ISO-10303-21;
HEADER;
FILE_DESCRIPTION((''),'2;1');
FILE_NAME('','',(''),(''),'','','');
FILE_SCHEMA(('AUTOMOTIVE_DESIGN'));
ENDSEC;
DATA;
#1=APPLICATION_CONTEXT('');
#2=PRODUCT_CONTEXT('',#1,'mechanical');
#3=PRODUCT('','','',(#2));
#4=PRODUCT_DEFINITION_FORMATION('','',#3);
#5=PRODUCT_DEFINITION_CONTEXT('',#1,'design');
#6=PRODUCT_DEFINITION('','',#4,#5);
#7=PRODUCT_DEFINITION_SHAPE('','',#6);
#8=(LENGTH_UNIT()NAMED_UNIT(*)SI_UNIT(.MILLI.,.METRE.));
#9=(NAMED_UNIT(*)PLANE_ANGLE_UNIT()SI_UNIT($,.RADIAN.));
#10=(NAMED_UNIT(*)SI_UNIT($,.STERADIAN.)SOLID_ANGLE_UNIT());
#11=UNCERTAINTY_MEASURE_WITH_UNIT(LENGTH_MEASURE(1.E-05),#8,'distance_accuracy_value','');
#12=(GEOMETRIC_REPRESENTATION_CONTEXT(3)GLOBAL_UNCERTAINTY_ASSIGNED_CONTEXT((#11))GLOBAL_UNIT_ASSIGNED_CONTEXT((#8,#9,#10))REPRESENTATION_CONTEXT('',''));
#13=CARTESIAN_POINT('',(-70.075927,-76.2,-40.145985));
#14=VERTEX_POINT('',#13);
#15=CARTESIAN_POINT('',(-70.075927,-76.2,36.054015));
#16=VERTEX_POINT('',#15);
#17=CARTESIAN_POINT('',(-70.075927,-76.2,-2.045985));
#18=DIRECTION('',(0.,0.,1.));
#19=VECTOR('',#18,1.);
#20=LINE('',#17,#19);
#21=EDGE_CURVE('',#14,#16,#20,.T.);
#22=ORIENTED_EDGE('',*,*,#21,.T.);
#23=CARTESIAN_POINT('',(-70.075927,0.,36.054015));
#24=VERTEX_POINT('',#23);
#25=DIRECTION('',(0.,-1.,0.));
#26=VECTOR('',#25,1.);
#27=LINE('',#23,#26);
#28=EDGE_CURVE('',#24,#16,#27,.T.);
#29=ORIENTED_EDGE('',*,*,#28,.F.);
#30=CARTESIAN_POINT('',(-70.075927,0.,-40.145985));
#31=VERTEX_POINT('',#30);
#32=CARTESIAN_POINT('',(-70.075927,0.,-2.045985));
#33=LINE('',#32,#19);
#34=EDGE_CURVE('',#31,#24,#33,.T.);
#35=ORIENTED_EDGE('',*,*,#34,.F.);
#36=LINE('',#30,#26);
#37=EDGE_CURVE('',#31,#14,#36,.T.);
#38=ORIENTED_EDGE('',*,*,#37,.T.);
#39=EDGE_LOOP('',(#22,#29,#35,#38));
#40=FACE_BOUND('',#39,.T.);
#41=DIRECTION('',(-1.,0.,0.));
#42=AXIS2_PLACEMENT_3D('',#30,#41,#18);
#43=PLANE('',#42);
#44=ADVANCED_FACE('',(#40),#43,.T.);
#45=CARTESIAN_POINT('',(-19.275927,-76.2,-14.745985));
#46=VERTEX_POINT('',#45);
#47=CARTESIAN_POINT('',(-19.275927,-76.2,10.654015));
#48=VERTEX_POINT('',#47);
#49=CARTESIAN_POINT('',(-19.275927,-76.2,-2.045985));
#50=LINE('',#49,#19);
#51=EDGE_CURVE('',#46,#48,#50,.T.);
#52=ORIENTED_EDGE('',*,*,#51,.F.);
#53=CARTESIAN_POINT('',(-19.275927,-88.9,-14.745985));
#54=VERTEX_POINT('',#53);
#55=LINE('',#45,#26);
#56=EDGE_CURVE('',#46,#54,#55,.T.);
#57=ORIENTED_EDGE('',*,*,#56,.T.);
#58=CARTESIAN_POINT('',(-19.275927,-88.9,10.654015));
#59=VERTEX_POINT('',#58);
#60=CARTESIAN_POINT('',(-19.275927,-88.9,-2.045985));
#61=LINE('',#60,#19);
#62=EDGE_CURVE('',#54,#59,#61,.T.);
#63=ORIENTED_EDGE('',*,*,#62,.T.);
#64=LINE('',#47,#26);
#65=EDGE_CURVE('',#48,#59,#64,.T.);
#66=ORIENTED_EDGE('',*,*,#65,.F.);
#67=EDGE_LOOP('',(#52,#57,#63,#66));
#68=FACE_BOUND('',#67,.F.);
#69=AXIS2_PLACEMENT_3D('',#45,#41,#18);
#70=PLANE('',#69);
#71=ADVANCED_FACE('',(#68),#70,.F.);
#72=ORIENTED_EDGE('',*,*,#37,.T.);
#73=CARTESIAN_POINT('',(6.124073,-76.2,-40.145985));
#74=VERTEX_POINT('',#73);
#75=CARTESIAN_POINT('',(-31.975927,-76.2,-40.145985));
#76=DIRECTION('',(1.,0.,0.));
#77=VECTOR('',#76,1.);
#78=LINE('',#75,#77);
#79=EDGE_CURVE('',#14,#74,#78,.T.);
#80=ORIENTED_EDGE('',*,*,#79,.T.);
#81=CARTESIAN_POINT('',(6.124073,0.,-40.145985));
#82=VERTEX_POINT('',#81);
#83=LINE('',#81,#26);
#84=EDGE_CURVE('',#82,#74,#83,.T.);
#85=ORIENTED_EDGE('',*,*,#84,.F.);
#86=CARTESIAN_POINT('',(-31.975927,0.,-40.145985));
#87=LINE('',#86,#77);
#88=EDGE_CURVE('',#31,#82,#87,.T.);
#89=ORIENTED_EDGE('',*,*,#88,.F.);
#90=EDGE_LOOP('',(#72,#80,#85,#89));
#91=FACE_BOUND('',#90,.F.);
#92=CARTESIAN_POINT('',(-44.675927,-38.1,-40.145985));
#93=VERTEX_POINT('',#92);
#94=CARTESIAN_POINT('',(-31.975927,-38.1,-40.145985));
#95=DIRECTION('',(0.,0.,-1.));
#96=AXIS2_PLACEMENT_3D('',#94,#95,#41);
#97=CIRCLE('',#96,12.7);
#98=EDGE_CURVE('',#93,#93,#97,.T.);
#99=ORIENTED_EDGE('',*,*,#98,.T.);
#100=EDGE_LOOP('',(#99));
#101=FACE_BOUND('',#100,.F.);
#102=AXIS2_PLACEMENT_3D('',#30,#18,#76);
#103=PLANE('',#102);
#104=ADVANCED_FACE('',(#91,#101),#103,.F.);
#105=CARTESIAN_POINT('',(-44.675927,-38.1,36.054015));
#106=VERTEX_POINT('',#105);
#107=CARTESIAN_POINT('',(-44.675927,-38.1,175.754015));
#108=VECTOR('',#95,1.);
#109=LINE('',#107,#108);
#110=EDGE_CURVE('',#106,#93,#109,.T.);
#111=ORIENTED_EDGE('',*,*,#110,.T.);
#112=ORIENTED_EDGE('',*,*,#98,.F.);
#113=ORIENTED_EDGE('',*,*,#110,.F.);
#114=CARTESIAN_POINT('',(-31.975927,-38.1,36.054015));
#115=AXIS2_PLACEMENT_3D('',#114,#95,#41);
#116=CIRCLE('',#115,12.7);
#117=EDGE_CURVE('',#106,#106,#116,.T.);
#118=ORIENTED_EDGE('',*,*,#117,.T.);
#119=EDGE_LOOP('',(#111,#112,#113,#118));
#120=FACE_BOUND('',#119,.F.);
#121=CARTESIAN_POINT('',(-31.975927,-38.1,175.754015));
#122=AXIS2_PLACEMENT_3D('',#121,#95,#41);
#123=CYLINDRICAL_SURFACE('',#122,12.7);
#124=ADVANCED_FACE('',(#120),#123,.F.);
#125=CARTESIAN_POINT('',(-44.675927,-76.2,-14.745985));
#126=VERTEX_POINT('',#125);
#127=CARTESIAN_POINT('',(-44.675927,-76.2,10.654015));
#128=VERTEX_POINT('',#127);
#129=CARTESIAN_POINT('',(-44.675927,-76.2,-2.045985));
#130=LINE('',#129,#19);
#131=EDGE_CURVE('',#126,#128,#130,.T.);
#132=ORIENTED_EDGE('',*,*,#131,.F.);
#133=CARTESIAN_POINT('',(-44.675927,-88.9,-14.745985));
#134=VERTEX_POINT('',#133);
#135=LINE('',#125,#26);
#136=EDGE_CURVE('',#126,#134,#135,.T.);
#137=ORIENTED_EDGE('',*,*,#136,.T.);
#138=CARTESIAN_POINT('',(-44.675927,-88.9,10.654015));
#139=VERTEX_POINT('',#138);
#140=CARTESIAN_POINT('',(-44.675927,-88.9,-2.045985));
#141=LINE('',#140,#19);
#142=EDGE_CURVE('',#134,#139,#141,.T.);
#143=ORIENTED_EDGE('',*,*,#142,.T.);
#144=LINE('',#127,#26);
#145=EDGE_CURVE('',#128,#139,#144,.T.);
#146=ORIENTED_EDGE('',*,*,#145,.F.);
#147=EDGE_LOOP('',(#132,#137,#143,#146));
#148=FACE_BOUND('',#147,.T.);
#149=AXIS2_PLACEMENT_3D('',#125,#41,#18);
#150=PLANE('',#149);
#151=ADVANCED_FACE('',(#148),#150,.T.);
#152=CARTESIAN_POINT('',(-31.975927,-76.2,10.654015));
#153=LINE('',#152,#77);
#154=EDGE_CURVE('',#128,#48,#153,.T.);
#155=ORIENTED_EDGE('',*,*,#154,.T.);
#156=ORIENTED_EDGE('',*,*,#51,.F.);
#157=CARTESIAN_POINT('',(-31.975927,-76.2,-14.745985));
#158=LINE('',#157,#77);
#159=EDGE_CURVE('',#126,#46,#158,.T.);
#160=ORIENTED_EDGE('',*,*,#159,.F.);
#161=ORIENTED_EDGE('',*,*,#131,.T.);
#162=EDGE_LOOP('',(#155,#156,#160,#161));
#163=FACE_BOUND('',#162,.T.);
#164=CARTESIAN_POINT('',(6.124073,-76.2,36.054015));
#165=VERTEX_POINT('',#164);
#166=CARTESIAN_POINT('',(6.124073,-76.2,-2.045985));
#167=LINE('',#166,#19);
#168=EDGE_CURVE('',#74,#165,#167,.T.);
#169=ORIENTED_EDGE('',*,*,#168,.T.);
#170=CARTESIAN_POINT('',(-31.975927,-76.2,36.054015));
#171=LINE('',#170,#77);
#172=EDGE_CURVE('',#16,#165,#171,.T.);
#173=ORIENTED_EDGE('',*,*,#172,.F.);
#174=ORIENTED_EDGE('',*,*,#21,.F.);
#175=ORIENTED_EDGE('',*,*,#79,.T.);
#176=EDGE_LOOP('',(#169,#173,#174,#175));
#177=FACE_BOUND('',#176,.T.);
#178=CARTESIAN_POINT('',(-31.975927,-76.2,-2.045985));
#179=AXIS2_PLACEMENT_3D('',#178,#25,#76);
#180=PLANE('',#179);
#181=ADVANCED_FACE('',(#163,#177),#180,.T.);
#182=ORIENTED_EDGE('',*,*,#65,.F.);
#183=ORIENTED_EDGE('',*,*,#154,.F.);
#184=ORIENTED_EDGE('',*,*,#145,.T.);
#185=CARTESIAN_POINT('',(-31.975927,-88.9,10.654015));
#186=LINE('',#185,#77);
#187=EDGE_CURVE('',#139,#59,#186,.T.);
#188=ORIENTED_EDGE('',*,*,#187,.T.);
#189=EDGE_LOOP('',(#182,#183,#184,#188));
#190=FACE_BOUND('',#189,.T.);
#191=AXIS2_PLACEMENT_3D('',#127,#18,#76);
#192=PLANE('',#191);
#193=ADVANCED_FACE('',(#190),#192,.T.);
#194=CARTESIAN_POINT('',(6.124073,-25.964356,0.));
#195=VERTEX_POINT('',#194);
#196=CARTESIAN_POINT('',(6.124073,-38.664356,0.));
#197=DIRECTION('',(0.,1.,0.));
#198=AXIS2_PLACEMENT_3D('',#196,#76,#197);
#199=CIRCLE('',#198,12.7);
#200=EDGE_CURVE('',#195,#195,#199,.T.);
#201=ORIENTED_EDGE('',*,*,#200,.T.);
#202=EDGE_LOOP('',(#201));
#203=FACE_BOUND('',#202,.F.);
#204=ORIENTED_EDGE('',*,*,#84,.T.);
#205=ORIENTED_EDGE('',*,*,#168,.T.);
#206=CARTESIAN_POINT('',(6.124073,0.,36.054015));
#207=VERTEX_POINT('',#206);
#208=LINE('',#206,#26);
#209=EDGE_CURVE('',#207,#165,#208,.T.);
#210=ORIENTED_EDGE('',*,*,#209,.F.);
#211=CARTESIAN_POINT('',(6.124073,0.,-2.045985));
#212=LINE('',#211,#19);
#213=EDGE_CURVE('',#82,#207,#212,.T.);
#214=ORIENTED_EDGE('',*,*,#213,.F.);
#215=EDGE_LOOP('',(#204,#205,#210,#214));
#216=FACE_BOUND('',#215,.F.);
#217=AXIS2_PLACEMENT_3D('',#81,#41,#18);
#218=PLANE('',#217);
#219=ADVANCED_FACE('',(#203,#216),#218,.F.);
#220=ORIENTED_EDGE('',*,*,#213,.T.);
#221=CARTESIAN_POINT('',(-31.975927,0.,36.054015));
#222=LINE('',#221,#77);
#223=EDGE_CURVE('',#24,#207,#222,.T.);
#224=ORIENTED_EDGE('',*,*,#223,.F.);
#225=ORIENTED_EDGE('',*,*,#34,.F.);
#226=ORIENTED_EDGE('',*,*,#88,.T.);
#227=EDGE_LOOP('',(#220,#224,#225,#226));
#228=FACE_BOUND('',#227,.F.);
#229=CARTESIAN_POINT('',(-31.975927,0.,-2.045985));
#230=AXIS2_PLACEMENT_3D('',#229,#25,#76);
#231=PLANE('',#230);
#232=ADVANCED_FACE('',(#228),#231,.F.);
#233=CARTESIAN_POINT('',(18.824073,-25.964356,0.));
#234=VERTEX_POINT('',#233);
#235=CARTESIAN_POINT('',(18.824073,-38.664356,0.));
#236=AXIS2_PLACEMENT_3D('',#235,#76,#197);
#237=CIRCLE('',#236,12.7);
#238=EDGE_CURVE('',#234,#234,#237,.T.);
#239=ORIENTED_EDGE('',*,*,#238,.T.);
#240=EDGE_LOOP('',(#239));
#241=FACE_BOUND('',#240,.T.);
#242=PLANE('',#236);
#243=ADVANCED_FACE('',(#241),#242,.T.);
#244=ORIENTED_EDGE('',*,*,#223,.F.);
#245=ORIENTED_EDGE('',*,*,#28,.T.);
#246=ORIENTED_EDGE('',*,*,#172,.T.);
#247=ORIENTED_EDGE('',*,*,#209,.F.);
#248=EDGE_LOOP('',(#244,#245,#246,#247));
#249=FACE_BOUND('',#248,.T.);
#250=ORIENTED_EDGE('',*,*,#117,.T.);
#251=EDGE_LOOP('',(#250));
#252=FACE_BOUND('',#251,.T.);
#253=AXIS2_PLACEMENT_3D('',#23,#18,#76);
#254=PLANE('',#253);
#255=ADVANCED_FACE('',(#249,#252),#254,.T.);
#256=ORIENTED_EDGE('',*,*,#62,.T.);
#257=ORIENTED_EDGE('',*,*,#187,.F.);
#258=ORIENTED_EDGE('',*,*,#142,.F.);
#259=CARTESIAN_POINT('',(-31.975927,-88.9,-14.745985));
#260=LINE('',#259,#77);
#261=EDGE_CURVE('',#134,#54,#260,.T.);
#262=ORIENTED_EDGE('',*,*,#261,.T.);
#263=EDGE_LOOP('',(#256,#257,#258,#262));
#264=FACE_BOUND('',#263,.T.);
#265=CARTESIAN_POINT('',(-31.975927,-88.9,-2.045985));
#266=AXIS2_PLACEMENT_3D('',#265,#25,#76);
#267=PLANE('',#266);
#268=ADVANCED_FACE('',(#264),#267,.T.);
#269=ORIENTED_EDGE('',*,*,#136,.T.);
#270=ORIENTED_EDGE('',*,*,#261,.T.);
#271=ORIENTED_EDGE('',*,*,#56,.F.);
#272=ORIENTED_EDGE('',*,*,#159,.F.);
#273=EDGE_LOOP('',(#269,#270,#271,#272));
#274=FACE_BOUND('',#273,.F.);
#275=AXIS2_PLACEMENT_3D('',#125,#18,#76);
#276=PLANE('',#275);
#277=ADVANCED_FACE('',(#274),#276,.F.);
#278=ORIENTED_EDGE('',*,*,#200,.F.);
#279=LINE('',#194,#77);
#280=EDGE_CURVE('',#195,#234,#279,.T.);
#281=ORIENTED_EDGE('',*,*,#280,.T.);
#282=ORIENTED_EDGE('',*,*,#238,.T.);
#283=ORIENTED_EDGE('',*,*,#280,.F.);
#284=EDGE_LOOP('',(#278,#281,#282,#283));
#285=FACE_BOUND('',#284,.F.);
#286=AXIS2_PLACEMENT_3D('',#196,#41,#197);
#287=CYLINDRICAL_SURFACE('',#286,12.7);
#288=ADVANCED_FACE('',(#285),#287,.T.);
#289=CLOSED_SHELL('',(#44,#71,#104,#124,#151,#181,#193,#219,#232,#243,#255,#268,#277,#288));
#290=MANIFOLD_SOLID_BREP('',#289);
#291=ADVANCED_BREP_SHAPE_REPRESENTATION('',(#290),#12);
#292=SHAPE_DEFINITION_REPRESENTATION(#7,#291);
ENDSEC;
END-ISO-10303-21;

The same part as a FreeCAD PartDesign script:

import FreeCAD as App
import Part
import Sketcher

V = App.Vector
Q = App.Units.Quantity

doc = App.newDocument("Part")
body = doc.addObject("PartDesign::Body", "Body")

# Sketch on XZ plane
sketch1 = doc.addObject("Sketcher::SketchObject", "Sketch")
body.addObject(sketch1)
sketch1.AttachmentSupport = (doc.XZ_Plane, [""])
sketch1.MapMode = "FlatFace"
sketch1.addGeometry([
    Part.LineSegment(V(-70, 36, 0), V(-70, -40, 0)),
    Part.LineSegment(V(-70, -40, 0), V(6, -40, 0)),
    Part.LineSegment(V(6, -40, 0), V(6, 36, 0)),
    Part.LineSegment(V(6, 36, 0), V(-70, 36, 0)),
], False)
sketch1.addConstraint([
    Sketcher.Constraint("Coincident", 0, 2, 1, 1),
    Sketcher.Constraint("Coincident", 1, 2, 2, 1),
    Sketcher.Constraint("Coincident", 2, 2, 3, 1),
    Sketcher.Constraint("Coincident", 3, 2, 0, 1),
    Sketcher.Constraint("Vertical", 0),
    Sketcher.Constraint("Horizontal", 1),
    Sketcher.Constraint("Vertical", 2),
    Sketcher.Constraint("Horizontal", 3),
    Sketcher.Constraint("Equal", 3, 0),
    Sketcher.Constraint("DistanceX", 1, 1, 1, 2, Q("3 in")),
    Sketcher.Constraint("DistanceX", 0, 2, -1, 1, 70.075927),
    Sketcher.Constraint("DistanceY", 0, 2, -1, 1, 40.145985),
])
pad1 = doc.addObject("PartDesign::Pad", "Pad")
body.addObject(pad1)
pad1.Profile = sketch1
pad1.Length = Q("3 in")

# Sketch on XZ plane
sketch2 = doc.addObject("Sketcher::SketchObject", "Sketch001")
body.addObject(sketch2)
sketch2.AttachmentSupport = (doc.XZ_Plane, [""])
sketch2.MapMode = "FlatFace"
sketch2.AttachmentOffset = App.Placement(V(0, 0, 3 * 25.4), App.Rotation())
sketch2.addGeometry([
    Part.LineSegment(V(-45, 11, 0), V(-45, -15, 0)),
    Part.LineSegment(V(-45, -15, 0), V(-19, -15, 0)),
    Part.LineSegment(V(-19, -15, 0), V(-19, 11, 0)),
    Part.LineSegment(V(-19, 11, 0), V(-45, 11, 0)),
], False)
sketch2.addConstraint([
    Sketcher.Constraint("Coincident", 0, 2, 1, 1),
    Sketcher.Constraint("Coincident", 1, 2, 2, 1),
    Sketcher.Constraint("Coincident", 2, 2, 3, 1),
    Sketcher.Constraint("Coincident", 3, 2, 0, 1),
    Sketcher.Constraint("Vertical", 0),
    Sketcher.Constraint("Horizontal", 1),
    Sketcher.Constraint("Vertical", 2),
    Sketcher.Constraint("Horizontal", 3),
    Sketcher.Constraint("Equal", 3, 0),
    Sketcher.Constraint("DistanceX", 1, 1, 1, 2, Q("1 in")),
    Sketcher.Constraint("DistanceX", 0, 2, -1, 1, 44.675927),
    Sketcher.Constraint("DistanceY", 0, 2, -1, 1, 14.745985),
])
pad2 = doc.addObject("PartDesign::Pad", "Pad001")
body.addObject(pad2)
pad2.Profile = sketch2
pad2.Length = Q("0.5 in")

# Sketch on XY plane
sketch3 = doc.addObject("Sketcher::SketchObject", "Sketch002")
body.addObject(sketch3)
sketch3.AttachmentSupport = (doc.XY_Plane, [""])
sketch3.MapMode = "FlatFace"
sketch3.AttachmentOffset = App.Placement(V(0, 0, 36.054015), App.Rotation())
sketch3.addGeometry(Part.Circle(V(-32, -38, 0), V(0, 0, 1), 13), False)
sketch3.addConstraint([
    Sketcher.Constraint("Diameter", 0, Q("1 in")),
    Sketcher.Constraint("DistanceY", 0, 3, -1, 1, Q("1.5 in")),
    Sketcher.Constraint("DistanceX", 0, 3, -1, 1, 31.975927),
])
doc.recompute()
hole = doc.addObject("PartDesign::Hole", "Hole")
body.addObject(hole)
hole.Profile = sketch3
hole.ThreadType = "None"
hole.Diameter = Q("1 in")
hole.DepthType = "ThroughAll"

# Sketch on YZ plane
sketch4 = doc.addObject("Sketcher::SketchObject", "Sketch003")
body.addObject(sketch4)
sketch4.AttachmentSupport = (doc.YZ_Plane, [""])
sketch4.MapMode = "FlatFace"
sketch4.AttachmentOffset = App.Placement(V(0, 0, 6.124073), App.Rotation())
sketch4.addGeometry(Part.Circle(V(-39, 0, 0), V(0, 0, 1), 13), False)
sketch4.addConstraint([
    Sketcher.Constraint("PointOnObject", 0, 3, -1),
    Sketcher.Constraint("Diameter", 0, Q("1 in")),
    Sketcher.Constraint("DistanceX", 0, 3, -1, 1, 38.664356),
])
pad3 = doc.addObject("PartDesign::Pad", "Pad002")
body.addObject(pad3)
pad3.Profile = sketch4
pad3.Length = Q("0.5 in")

doc.recompute()
